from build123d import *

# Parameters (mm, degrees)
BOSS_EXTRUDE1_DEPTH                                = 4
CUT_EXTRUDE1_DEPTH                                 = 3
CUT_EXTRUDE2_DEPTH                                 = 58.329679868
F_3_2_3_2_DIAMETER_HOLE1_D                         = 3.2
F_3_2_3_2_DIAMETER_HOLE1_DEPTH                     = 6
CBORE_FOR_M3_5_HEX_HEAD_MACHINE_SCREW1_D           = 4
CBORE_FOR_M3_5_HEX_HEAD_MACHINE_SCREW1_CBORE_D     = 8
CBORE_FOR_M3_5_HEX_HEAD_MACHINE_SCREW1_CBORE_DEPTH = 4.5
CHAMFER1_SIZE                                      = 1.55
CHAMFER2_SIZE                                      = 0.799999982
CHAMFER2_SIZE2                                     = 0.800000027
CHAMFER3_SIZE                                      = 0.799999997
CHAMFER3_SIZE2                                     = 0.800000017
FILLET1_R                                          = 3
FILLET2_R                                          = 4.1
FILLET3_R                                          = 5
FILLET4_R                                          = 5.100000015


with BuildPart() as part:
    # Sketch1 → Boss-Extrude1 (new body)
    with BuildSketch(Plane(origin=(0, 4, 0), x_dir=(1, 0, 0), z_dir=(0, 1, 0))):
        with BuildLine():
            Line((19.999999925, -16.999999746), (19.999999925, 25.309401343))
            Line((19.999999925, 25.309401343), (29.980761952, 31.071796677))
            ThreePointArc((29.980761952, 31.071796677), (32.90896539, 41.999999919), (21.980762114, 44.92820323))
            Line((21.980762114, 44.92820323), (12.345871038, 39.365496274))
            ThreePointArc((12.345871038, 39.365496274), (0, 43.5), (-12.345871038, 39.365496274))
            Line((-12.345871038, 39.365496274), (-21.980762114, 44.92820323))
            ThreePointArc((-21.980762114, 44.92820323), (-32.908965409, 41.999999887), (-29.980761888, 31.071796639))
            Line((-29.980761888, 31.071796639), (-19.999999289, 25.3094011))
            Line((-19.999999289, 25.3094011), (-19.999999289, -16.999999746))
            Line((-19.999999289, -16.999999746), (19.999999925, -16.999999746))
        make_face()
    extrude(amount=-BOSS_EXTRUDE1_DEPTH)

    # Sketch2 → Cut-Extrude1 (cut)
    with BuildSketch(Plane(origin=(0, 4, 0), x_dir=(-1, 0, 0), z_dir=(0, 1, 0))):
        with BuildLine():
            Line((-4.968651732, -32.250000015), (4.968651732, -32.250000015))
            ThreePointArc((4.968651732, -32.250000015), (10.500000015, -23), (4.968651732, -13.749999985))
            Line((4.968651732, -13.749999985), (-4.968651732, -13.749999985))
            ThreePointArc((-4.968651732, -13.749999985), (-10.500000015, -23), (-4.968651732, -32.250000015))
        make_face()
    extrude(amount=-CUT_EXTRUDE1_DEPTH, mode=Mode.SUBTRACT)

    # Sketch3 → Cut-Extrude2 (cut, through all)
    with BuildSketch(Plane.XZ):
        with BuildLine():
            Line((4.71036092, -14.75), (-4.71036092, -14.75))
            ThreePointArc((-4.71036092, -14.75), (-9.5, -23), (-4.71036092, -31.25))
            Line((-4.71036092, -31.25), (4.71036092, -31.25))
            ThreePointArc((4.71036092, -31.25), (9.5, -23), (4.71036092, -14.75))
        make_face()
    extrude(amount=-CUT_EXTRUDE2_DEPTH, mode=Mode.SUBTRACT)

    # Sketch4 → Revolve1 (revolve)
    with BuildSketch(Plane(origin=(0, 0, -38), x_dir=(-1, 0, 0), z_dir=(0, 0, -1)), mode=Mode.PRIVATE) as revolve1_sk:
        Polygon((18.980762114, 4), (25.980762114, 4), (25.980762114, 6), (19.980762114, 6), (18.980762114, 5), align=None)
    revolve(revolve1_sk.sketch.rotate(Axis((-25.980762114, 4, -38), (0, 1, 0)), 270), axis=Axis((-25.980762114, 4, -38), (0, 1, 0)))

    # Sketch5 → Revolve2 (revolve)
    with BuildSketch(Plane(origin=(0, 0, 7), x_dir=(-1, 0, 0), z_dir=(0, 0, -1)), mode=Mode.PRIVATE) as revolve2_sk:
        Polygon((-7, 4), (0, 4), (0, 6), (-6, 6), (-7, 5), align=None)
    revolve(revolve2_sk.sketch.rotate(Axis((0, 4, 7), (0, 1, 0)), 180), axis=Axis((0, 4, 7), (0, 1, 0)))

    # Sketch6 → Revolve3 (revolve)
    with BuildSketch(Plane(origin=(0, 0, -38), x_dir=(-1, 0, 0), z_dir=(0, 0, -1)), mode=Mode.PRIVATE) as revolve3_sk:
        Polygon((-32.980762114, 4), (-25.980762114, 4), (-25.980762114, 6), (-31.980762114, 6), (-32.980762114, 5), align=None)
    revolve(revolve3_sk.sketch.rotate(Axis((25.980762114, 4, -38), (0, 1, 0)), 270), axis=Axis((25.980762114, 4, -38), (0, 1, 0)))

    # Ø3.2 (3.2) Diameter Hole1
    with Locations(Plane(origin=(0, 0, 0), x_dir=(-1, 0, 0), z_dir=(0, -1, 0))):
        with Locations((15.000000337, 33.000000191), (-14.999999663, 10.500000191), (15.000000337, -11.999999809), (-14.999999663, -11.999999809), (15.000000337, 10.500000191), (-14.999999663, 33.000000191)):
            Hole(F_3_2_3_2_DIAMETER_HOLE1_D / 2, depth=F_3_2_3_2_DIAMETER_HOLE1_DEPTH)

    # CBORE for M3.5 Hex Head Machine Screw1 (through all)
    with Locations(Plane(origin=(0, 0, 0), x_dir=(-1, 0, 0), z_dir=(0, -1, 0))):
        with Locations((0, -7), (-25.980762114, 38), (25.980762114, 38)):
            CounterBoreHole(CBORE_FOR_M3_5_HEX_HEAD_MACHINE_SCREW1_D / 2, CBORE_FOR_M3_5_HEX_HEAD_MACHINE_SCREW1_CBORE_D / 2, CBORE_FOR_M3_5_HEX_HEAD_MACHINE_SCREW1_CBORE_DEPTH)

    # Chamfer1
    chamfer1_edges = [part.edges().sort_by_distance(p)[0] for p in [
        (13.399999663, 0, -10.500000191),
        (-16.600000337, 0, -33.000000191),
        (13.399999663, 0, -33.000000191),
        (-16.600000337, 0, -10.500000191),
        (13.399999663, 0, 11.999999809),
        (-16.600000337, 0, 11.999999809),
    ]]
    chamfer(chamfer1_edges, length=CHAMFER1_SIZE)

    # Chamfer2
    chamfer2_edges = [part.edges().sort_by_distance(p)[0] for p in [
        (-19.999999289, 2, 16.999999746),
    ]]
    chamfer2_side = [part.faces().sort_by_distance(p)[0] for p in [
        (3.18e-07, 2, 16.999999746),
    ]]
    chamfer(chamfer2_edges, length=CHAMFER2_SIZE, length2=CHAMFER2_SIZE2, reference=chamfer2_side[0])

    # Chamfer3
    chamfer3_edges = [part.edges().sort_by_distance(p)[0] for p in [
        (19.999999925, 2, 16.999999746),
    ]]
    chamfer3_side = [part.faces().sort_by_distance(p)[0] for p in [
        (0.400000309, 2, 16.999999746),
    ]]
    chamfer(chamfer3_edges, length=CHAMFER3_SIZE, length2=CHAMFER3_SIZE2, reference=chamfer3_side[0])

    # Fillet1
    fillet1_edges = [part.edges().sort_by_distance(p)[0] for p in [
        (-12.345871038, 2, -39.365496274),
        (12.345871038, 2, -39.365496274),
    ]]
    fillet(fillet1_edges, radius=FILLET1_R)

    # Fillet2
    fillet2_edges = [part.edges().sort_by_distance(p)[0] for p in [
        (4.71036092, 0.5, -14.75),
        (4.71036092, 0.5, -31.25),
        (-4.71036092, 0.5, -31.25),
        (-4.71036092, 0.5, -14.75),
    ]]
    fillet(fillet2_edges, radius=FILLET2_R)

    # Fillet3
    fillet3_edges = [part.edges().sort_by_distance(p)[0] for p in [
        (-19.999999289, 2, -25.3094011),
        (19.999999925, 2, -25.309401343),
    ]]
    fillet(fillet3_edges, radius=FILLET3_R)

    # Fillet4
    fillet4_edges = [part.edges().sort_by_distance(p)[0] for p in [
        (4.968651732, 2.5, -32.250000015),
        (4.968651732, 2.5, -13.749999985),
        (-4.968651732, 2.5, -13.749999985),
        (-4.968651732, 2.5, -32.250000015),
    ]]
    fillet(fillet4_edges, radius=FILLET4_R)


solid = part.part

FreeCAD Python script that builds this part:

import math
import FreeCAD as App
import Part
import Sketcher
Q = App.Units.Quantity


def edges_at(feature, points):
    """Names of the edges that pass closest to the given points."""
    edges = feature.Shape.Edges
    near = lambda p: min(range(len(edges)), key=lambda i: edges[i].distToShape(Part.Vertex(*p))[0])
    return sorted({f"Edge{near(p) + 1}" for p in points})

doc = App.newDocument("Part")
body = doc.addObject("PartDesign::Body", "Body")

sketch1 = doc.addObject("Sketcher::SketchObject", "Sketch")
body.addObject(sketch1)
sketch1.AttachmentSupport = (doc.XZ_Plane, [""])
sketch1.MapMode = "FlatFace"
sketch1.AttachmentOffset = App.Placement(App.Vector(0, 0, -4), App.Rotation())
sketch1.addGeometry([
    Part.LineSegment(App.Vector(20, 17, 0), App.Vector(20, -25, 0)),
    Part.LineSegment(App.Vector(20, -25, 0), App.Vector(30, -31, 0)),
    Part.ArcOfCircle(Part.Circle(App.Vector(26, -38, 0), App.Vector(0, 0, 1), 8), math.radians(-120), math.radians(60)),
    Part.LineSegment(App.Vector(22, -45, 0), App.Vector(12, -39, 0)),
    Part.ArcOfCircle(Part.Circle(App.Vector(0, -23, 0), App.Vector(0, 0, 1), 20), math.radians(-127), math.radians(-53)),
    Part.LineSegment(App.Vector(-12, -39, 0), App.Vector(-22, -45, 0)),
    Part.ArcOfCircle(Part.Circle(App.Vector(-26, -38, 0), App.Vector(0, 0, 1), 8), math.radians(120), math.radians(300)),
    Part.LineSegment(App.Vector(-30, -31, 0), App.Vector(-20, -25, 0)),
    Part.LineSegment(App.Vector(-20, -25, 0), App.Vector(-20, 17, 0)),
    Part.LineSegment(App.Vector(-20, 17, 0), App.Vector(20, 17, 0)),
], False)
sketch1.addConstraint([
    Sketcher.Constraint("Coincident", 0, 2, 1, 1),
    Sketcher.Constraint("Tangent", 1, 2, 2, 2),
    Sketcher.Constraint("Tangent", 2, 1, 3, 1),
    Sketcher.Constraint("Coincident", 3, 2, 4, 2),
    Sketcher.Constraint("Coincident", 4, 1, 5, 1),
    Sketcher.Constraint("Tangent", 5, 2, 6, 2),
    Sketcher.Constraint("Tangent", 6, 1, 7, 1),
    Sketcher.Constraint("Coincident", 7, 2, 8, 1),
    Sketcher.Constraint("Coincident", 8, 2, 9, 1),
    Sketcher.Constraint("Coincident", 9, 2, 0, 1),
    Sketcher.Constraint("Vertical", 0),
    Sketcher.Constraint("Vertical", 8),
    Sketcher.Constraint("Horizontal", 9),
    Sketcher.Constraint("Equal", 2, 6),
    Sketcher.Constraint("Symmetric", 2, 3, 6, 3, -2),
    Sketcher.Constraint("Symmetric", 3, 2, 4, 1, -2),
    Sketcher.Constraint("Symmetric", 0, 2, 7, 2, -2),
    Sketcher.Constraint("Parallel", 1, 3),
    Sketcher.Constraint("Radius", 2, Q("8 mm")),
    Sketcher.Constraint("Radius", 4, Q("20.5 mm")),
    Sketcher.Constraint("DistanceX", 9, 1, 9, 2, Q("39.999999 mm")),
    Sketcher.Constraint("Angle", 1, Q("-29.999999 deg")),
    Sketcher.Constraint("DistanceY", 2, 3, -1, 1, Q("38 mm")),
    Sketcher.Constraint("DistanceY", 4, 3, -1, 1, Q("23 mm")),
    Sketcher.Constraint("DistanceY", -1, 1, 8, 2, Q("17 mm")),
    Sketcher.Constraint("DistanceY", 0, 2, 0, 1, Q("42.309401 mm")),
])
pad1 = doc.addObject("PartDesign::Pad", "Pad")
body.addObject(pad1)
pad1.Profile = sketch1
pad1.Length = 4

sketch2 = doc.addObject("Sketcher::SketchObject", "Sketch001")
body.addObject(sketch2)
sketch2.AttachmentSupport = (doc.XZ_Plane, [""])
sketch2.MapMode = "FlatFace"
sketch2.AttachmentOffset = App.Placement(App.Vector(0, 0, -4), App.Rotation())
sketch2.addGeometry([
    Part.LineSegment(App.Vector(5, -32, 0), App.Vector(-5, -32, 0)),
    Part.ArcOfCircle(Part.Circle(App.Vector(0, -23, 0), App.Vector(0, 0, 1), 11), math.radians(118), math.radians(242)),
    Part.LineSegment(App.Vector(-5, -14, 0), App.Vector(5, -14, 0)),
    Part.ArcOfCircle(Part.Circle(App.Vector(0, -23, 0), App.Vector(0, 0, 1), 11), math.radians(-62), math.radians(62)),
], False)
sketch2.addConstraint([
    Sketcher.Constraint("Coincident", 0, 2, 1, 2),
    Sketcher.Constraint("Coincident", 1, 1, 2, 1),
    Sketcher.Constraint("Coincident", 2, 2, 3, 2),
    Sketcher.Constraint("Coincident", 3, 1, 0, 1),
    Sketcher.Constraint("Horizontal", 0),
    Sketcher.Constraint("Horizontal", 2),
    Sketcher.Constraint("Coincident", 3, 3, 1, 3),
    Sketcher.Constraint("Equal", 1, 3),
    Sketcher.Constraint("PointOnObject", 1, 3, -2),
    Sketcher.Constraint("Vertical", 0, 2, 1, 1),
    Sketcher.Constraint("Radius", 1, Q("10.5 mm")),
    Sketcher.Constraint("DistanceY", 1, 3, -1, 1, Q("23 mm")),
    Sketcher.Constraint("DistanceY", 0, 2, 1, 1, Q("18.5 mm")),
])
pocket1 = doc.addObject("PartDesign::Pocket", "Pocket")
body.addObject(pocket1)
pocket1.Profile = sketch2
pocket1.Length = 3
pocket1.Reversed = True

sketch3 = doc.addObject("Sketcher::SketchObject", "Sketch002")
body.addObject(sketch3)
sketch3.AttachmentSupport = (doc.XZ_Plane, [""])
sketch3.MapMode = "FlatFace"
sketch3.addGeometry([
    Part.LineSegment(App.Vector(5, -15, 0), App.Vector(-5, -15, 0)),
    Part.ArcOfCircle(Part.Circle(App.Vector(0, -23, 0), App.Vector(0, 0, 1), 10), math.radians(120), math.radians(240)),
    Part.LineSegment(App.Vector(-5, -31, 0), App.Vector(5, -31, 0)),
    Part.ArcOfCircle(Part.Circle(App.Vector(0, -23, 0), App.Vector(0, 0, 1), 10), math.radians(-60), math.radians(60)),
], False)
sketch3.addConstraint([
    Sketcher.Constraint("Coincident", 0, 2, 1, 1),
    Sketcher.Constraint("Coincident", 1, 2, 2, 1),
    Sketcher.Constraint("Coincident", 2, 2, 3, 1),
    Sketcher.Constraint("Coincident", 3, 2, 0, 1),
    Sketcher.Constraint("Horizontal", 0),
    Sketcher.Constraint("Horizontal", 2),
    Sketcher.Constraint("Coincident", 3, 3, 1, 3),
    Sketcher.Constraint("Equal", 1, 3),
    Sketcher.Constraint("PointOnObject", 1, 3, -2),
    Sketcher.Constraint("Vertical", 0, 2, 1, 2),
    Sketcher.Constraint("Radius", 1, Q("9.5 mm")),
    Sketcher.Constraint("DistanceY", 1, 3, -1, 1, Q("23 mm")),
    Sketcher.Constraint("DistanceY", 1, 2, 0, 2, Q("16.5 mm")),
])
pocket2 = doc.addObject("PartDesign::Pocket", "Pocket001")
body.addObject(pocket2)
pocket2.Profile = sketch3
pocket2.Type = "ThroughAll"

sketch4 = doc.addObject("Sketcher::SketchObject", "Sketch003")
body.addObject(sketch4)
sketch4.AttachmentSupport = (doc.XY_Plane, [""])
sketch4.MapMode = "FlatFace"
sketch4.AttachmentOffset = App.Placement(App.Vector(0, 0, -38), App.Rotation())
sketch4.addGeometry([
    Part.LineSegment(App.Vector(-19, 4, 0), App.Vector(-26, 4, 0)),
    Part.LineSegment(App.Vector(-26, 4, 0), App.Vector(-26, 6, 0)),
    Part.LineSegment(App.Vector(-26, 6, 0), App.Vector(-20, 6, 0)),
    Part.LineSegment(App.Vector(-20, 6, 0), App.Vector(-19, 5, 0)),
    Part.LineSegment(App.Vector(-19, 5, 0), App.Vector(-19, 4, 0)),
], False)
sketch4.addGeometry(Part.LineSegment(App.Vector(-26, 4, 0), App.Vector(-26, 6, 0)), True)
sketch4.addConstraint([
    Sketcher.Constraint("Coincident", 0, 2, 1, 1),
    Sketcher.Constraint("Coincident", 1, 2, 2, 1),
    Sketcher.Constraint("Coincident", 2, 2, 3, 1),
    Sketcher.Constraint("Coincident", 3, 2, 4, 1),
    Sketcher.Constraint("Coincident", 4, 2, 0, 1),
    Sketcher.Constraint("Horizontal", 0),
    Sketcher.Constraint("Vertical", 1),
    Sketcher.Constraint("Horizontal", 2),
    Sketcher.Constraint("Vertical", 4),
    Sketcher.Constraint("Vertical", 5),
    Sketcher.Constraint("Coincident", 5, 1, 0, 2),
    Sketcher.Constraint("Horizontal", 2, 2, 5, 2),
    Sketcher.Constraint("DistanceX", 0, 2, 0, 1, Q("7 mm")),
    Sketcher.Constraint("DistanceX", 2, 1, 2, 2, Q("6 mm")),
    Sketcher.Constraint("DistanceY", 1, 1, 1, 2, Q("2 mm")),
    Sketcher.Constraint("DistanceY", 4, 2, 4, 1, Q("1 mm")),
    Sketcher.Constraint("DistanceY", -1, 1, 0, 2, Q("4 mm")),
    Sketcher.Constraint("DistanceX", 0, 2, -1, 1, Q("25.980762 mm")),
])
revolution = doc.addObject("PartDesign::Revolution", "Revolution")
body.addObject(revolution)
revolution.Profile = sketch4
revolution.ReferenceAxis = (sketch4, ["Axis0"])
revolution.Angle = 360

sketch5 = doc.addObject("Sketcher::SketchObject", "Sketch004")
body.addObject(sketch5)
sketch5.AttachmentSupport = (doc.XY_Plane, [""])
sketch5.MapMode = "FlatFace"
sketch5.AttachmentOffset = App.Placement(App.Vector(0, 0, 7), App.Rotation())
sketch5.addGeometry([
    Part.LineSegment(App.Vector(7, 4, 0), App.Vector(0, 4, 0)),
    Part.LineSegment(App.Vector(0, 4, 0), App.Vector(0, 6, 0)),
    Part.LineSegment(App.Vector(0, 6, 0), App.Vector(6, 6, 0)),
    Part.LineSegment(App.Vector(6, 6, 0), App.Vector(7, 5, 0)),
    Part.LineSegment(App.Vector(7, 5, 0), App.Vector(7, 4, 0)),
], False)
sketch5.addConstraint([
    Sketcher.Constraint("Coincident", 0, 2, 1, 1),
    Sketcher.Constraint("Coincident", 1, 2, 2, 1),
    Sketcher.Constraint("Coincident", 2, 2, 3, 1),
    Sketcher.Constraint("Coincident", 3, 2, 4, 1),
    Sketcher.Constraint("Coincident", 4, 2, 0, 1),
    Sketcher.Constraint("Horizontal", 0),
    Sketcher.Constraint("Vertical", 1),
    Sketcher.Constraint("Horizontal", 2),
    Sketcher.Constraint("Vertical", 4),
    Sketcher.Constraint("PointOnObject", 0, 2, -2),
    Sketcher.Constraint("DistanceX", 0, 2, 0, 1, Q("7 mm")),
    Sketcher.Constraint("DistanceX", 2, 1, 2, 2, Q("6 mm")),
    Sketcher.Constraint("DistanceY", 1, 1, 1, 2, Q("2 mm")),
    Sketcher.Constraint("DistanceY", 4, 2, 4, 1, Q("1 mm")),
    Sketcher.Constraint("DistanceY", -1, 1, 0, 2, Q("4 mm")),
])
revolution2 = doc.addObject("PartDesign::Revolution", "Revolution001")
body.addObject(revolution2)
revolution2.Profile = sketch5
revolution2.ReferenceAxis = (sketch5, ["V_Axis"])
revolution2.Angle = 360

sketch6 = doc.addObject("Sketcher::SketchObject", "Sketch005")
body.addObject(sketch6)
sketch6.AttachmentSupport = (doc.XY_Plane, [""])
sketch6.MapMode = "FlatFace"
sketch6.AttachmentOffset = App.Placement(App.Vector(0, 0, -38), App.Rotation())
sketch6.addGeometry([
    Part.LineSegment(App.Vector(33, 4, 0), App.Vector(26, 4, 0)),
    Part.LineSegment(App.Vector(26, 4, 0), App.Vector(26, 6, 0)),
    Part.LineSegment(App.Vector(26, 6, 0), App.Vector(32, 6, 0)),
    Part.LineSegment(App.Vector(32, 6, 0), App.Vector(33, 5, 0)),
    Part.LineSegment(App.Vector(33, 5, 0), App.Vector(33, 4, 0)),
], False)
sketch6.addGeometry(Part.LineSegment(App.Vector(26, 4, 0), App.Vector(26, 6, 0)), True)
sketch6.addConstraint([
    Sketcher.Constraint("Coincident", 0, 2, 1, 1),
    Sketcher.Constraint("Coincident", 1, 2, 2, 1),
    Sketcher.Constraint("Coincident", 2, 2, 3, 1),
    Sketcher.Constraint("Coincident", 3, 2, 4, 1),
    Sketcher.Constraint("Coincident", 4, 2, 0, 1),
    Sketcher.Constraint("Horizontal", 0),
    Sketcher.Constraint("Vertical", 1),
    Sketcher.Constraint("Horizontal", 2),
    Sketcher.Constraint("Vertical", 4),
    Sketcher.Constraint("Vertical", 5),
    Sketcher.Constraint("Coincident", 5, 1, 0, 2),
    Sketcher.Constraint("Horizontal", 2, 2, 5, 2),
    Sketcher.Constraint("DistanceX", 0, 2, 0, 1, Q("7 mm")),
    Sketcher.Constraint("DistanceX", 2, 1, 2, 2, Q("6 mm")),
    Sketcher.Constraint("DistanceY", 1, 1, 1, 2, Q("2 mm")),
    Sketcher.Constraint("DistanceY", 4, 2, 4, 1, Q("1 mm")),
    Sketcher.Constraint("DistanceY", -1, 1, 0, 2, Q("4 mm")),
    Sketcher.Constraint("DistanceX", -1, 1, 0, 2, Q("25.980762 mm")),
])
revolution3 = doc.addObject("PartDesign::Revolution", "Revolution002")
body.addObject(revolution3)
revolution3.Profile = sketch6
revolution3.ReferenceAxis = (sketch6, ["Axis0"])
revolution3.Angle = 360

sketch7 = doc.addObject("Sketcher::SketchObject", "Sketch006")
body.addObject(sketch7)
sketch7.AttachmentSupport = (doc.XZ_Plane, [""])
sketch7.MapMode = "FlatFace"
sketch7.addGeometry([
    Part.Circle(App.Vector(-15, -33, 0), App.Vector(0, 0, 1), 1.6),
    Part.Circle(App.Vector(15, -10.5, 0), App.Vector(0, 0, 1), 1.6),
    Part.Circle(App.Vector(-15, 12, 0), App.Vector(0, 0, 1), 1.6),
    Part.Circle(App.Vector(15, 12, 0), App.Vector(0, 0, 1), 1.6),
    Part.Circle(App.Vector(-15, -10.5, 0), App.Vector(0, 0, 1), 1.6),
    Part.Circle(App.Vector(15, -33, 0), App.Vector(0, 0, 1), 1.6),
], False)
sketch7.addConstraint([
    Sketcher.Constraint("Equal", 0, 1),
    Sketcher.Constraint("Equal", 1, 2),
    Sketcher.Constraint("Equal", 2, 3),
    Sketcher.Constraint("Equal", 3, 4),
    Sketcher.Constraint("Equal", 4, 5),
    Sketcher.Constraint("Symmetric", 2, 3, 3, 3, -2),
    Sketcher.Constraint("Symmetric", 1, 3, 4, 3, -2),
    Sketcher.Constraint("Symmetric", 0, 3, 5, 3, -2),
    Sketcher.Constraint("Vertical", 0, 3, 2, 3),
    Sketcher.Constraint("Vertical", 1, 3, 3, 3),
    Sketcher.Constraint("Diameter", 0, Q("3.2 mm")),
    Sketcher.Constraint("DistanceX", 0, 3, -1, 1, Q("15 mm")),
    Sketcher.Constraint("DistanceY", 0, 3, -1, 1, Q("33 mm")),
    Sketcher.Constraint("DistanceY", -1, 1, 2, 3, Q("12 mm")),
    Sketcher.Constraint("DistanceY", 1, 3, -1, 1, Q("10.5 mm")),
])
doc.recompute()
hole = doc.addObject("PartDesign::Hole", "Hole")
body.addObject(hole)
hole.Profile = sketch7
hole.ThreadType = "None"
hole.Diameter = 3.2
hole.DepthType = "Dimension"
hole.Depth = 6
hole.DrillPoint = "Flat"

sketch8 = doc.addObject("Sketcher::SketchObject", "Sketch007")
body.addObject(sketch8)
sketch8.AttachmentSupport = (doc.XZ_Plane, [""])
sketch8.MapMode = "FlatFace"
sketch8.addGeometry([
    Part.Circle(App.Vector(0, 7, 0), App.Vector(0, 0, 1), 2),
    Part.Circle(App.Vector(26, -38, 0), App.Vector(0, 0, 1), 2),
    Part.Circle(App.Vector(-26, -38, 0), App.Vector(0, 0, 1), 2),
], False)
sketch8.addConstraint([
    Sketcher.Constraint("Equal", 0, 1),
    Sketcher.Constraint("Equal", 1, 2),
    Sketcher.Constraint("Symmetric", 1, 3, 2, 3, -2),
    Sketcher.Constraint("PointOnObject", 0, 3, -2),
    Sketcher.Constraint("Diameter", 0, Q("4 mm")),
    Sketcher.Constraint("DistanceY", -1, 1, 0, 3, Q("7 mm")),
    Sketcher.Constraint("DistanceY", 1, 3, -1, 1, Q("38 mm")),
    Sketcher.Constraint("DistanceX", -1, 1, 1, 3, Q("25.980762 mm")),
])
doc.recompute()
hole2 = doc.addObject("PartDesign::Hole", "Hole001")
body.addObject(hole2)
hole2.Profile = sketch8
hole2.ThreadType = "None"
hole2.Diameter = 4
hole2.DepthType = "ThroughAll"
hole2.HoleCutType = "Counterbore"
hole2.HoleCutDiameter = 8
hole2.HoleCutDepth = 4.5
doc.recompute()

chamfer = doc.addObject("PartDesign::Chamfer", "Chamfer")
body.addObject(chamfer)
chamfer.Base = (hole2, edges_at(hole2, [
    (13.4, 0, -10.5),
    (-16.6, 0, -33),
    (13.4, 0, -33),
    (-16.6, 0, -10.5),
    (13.4, 0, 12),
    (-16.6, 0, 12),
]))
chamfer.Size = 1.55
doc.recompute()

chamfer2 = doc.addObject("PartDesign::Chamfer", "Chamfer001")
body.addObject(chamfer2)
chamfer2.Base = (chamfer, edges_at(chamfer, [(-20, 2, 17)]))
chamfer2.ChamferType = "Two distances"
chamfer2.Size = 0.8
chamfer2.Size2 = 0.8
doc.recompute()

chamfer3 = doc.addObject("PartDesign::Chamfer", "Chamfer002")
body.addObject(chamfer3)
chamfer3.Base = (chamfer2, edges_at(chamfer2, [(20, 2, 17)]))
chamfer3.ChamferType = "Two distances"
chamfer3.Size = 0.8
chamfer3.Size2 = 0.8
doc.recompute()

fillet = doc.addObject("PartDesign::Fillet", "Fillet")
body.addObject(fillet)
fillet.Base = (chamfer3, edges_at(chamfer3, [(-12.346, 2, -39.365), (12.346, 2, -39.365)]))
fillet.Radius = 3
doc.recompute()

fillet2 = doc.addObject("PartDesign::Fillet", "Fillet001")
body.addObject(fillet2)
fillet2.Base = (fillet, edges_at(fillet, [
    (4.71, 0.5, -14.75),
    (4.71, 0.5, -31.25),
    (-4.71, 0.5, -31.25),
    (-4.71, 0.5, -14.75),
]))
fillet2.Radius = 4.1
doc.recompute()

fillet3 = doc.addObject("PartDesign::Fillet", "Fillet002")
body.addObject(fillet3)
fillet3.Base = (fillet2, edges_at(fillet2, [(-20, 2, -25.309), (20, 2, -25.309)]))
fillet3.Radius = 5
doc.recompute()

fillet4 = doc.addObject("PartDesign::Fillet", "Fillet003")
body.addObject(fillet4)
fillet4.Base = (fillet3, edges_at(fillet3, [
    (4.969, 2.5, -32.25),
    (4.969, 2.5, -13.75),
    (-4.969, 2.5, -13.75),
    (-4.969, 2.5, -32.25),
]))
fillet4.Radius = 5.1

doc.recompute()
